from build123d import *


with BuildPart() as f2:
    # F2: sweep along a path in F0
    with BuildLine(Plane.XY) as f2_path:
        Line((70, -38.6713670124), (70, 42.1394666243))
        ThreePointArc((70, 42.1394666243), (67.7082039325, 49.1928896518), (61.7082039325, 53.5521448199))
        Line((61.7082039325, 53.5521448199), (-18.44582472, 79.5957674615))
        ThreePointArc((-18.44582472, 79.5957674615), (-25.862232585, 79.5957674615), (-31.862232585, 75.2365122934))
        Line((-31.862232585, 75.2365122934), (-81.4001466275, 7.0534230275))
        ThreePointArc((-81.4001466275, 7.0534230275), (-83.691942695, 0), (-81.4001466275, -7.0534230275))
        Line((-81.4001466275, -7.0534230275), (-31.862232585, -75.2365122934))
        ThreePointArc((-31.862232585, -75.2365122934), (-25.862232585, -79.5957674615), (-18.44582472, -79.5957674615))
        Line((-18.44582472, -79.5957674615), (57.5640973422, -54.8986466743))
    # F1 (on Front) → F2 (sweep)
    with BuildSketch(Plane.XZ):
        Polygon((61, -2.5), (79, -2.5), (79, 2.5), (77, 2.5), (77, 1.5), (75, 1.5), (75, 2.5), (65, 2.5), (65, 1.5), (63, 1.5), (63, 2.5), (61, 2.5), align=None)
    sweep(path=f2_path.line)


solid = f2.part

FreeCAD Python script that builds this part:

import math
import FreeCAD as App
import Part
import Sketcher
from FreeCAD import Vector
Q = App.Units.Quantity


def add_polygon(sketch, points):
    """Adds a closed chain of lines whose ends are joined by coincident constraints."""
    first, n = sketch.GeometryCount, len(points)
    for a, b in zip(points, points[1:] + points[:1]):
        sketch.addGeometry(Part.LineSegment(App.Vector(*a, 0), App.Vector(*b, 0)), False)
    for i in range(n):
        sketch.addConstraint(Sketcher.Constraint("Coincident", first + i, 2, first + (i + 1) % n, 1))

doc = App.newDocument("Part")
body = doc.addObject("PartDesign::Body", "Body")

# Sketch on XZ plane
sketch1 = body.newObject("Sketcher::SketchObject", "Sketch")
sketch1.AttachmentSupport = (doc.getObject("XZ_Plane"), [""])
sketch1.MapMode = "FlatFace"
add_polygon(sketch1, [(61, -2.5), (79, -2.5), (79, 2.5), (77, 2.5), (77, 1.5), (75, 1.5), (75, 2.5), (65, 2.5), (65, 1.5), (63, 1.5), (63, 2.5), (61, 2.5)])  # lines 0-11
sketch1.addConstraint([
    Sketcher.Constraint("Horizontal", 0),
    Sketcher.Constraint("Vertical", 1),
    Sketcher.Constraint("Horizontal", 2),
    Sketcher.Constraint("Vertical", 3),
    Sketcher.Constraint("Horizontal", 4),
    Sketcher.Constraint("Vertical", 5),
    Sketcher.Constraint("Horizontal", 6),
    Sketcher.Constraint("Vertical", 7),
    Sketcher.Constraint("Horizontal", 8),
    Sketcher.Constraint("Vertical", 9),
    Sketcher.Constraint("Horizontal", 10),
    Sketcher.Constraint("Vertical", 11),
    Sketcher.Constraint("Horizontal", 2, 2, 5, 2),
    Sketcher.Constraint("Horizontal", 4, 2, 7, 2),
    Sketcher.Constraint("Horizontal", 6, 2, 9, 2),
    Sketcher.Constraint("Equal", 2, 4),
    Sketcher.Constraint("Equal", 4, 8),
    Sketcher.Constraint("Equal", 8, 10),
    Sketcher.Constraint("DistanceX", 0, 1, 0, 2, 18.0),
    Sketcher.Constraint("DistanceX", 2, 2, 2, 1, 2.0),
    Sketcher.Constraint("DistanceY", 1, 1, 1, 2, 5.0),
    Sketcher.Constraint("DistanceY", 3, 2, 3, 1, 1.0),
    Sketcher.Constraint("DistanceX", -1, 1, 0, 2, 79.0),
    Sketcher.Constraint("DistanceY", 0, 2, -1, 1, 2.5),
])

# Sketch on XY plane
sketch2 = body.newObject("Sketcher::SketchObject", "Sketch001")
sketch2.AttachmentSupport = (doc.getObject("XY_Plane"), [""])
sketch2.MapMode = "FlatFace"
sketch2.addGeometry([
    Part.LineSegment(Vector(70, -39, 0), Vector(70, 42, 0)),  # 0
    Part.ArcOfCircle(Part.Circle(Vector(58, 42, 0), Vector(0, 0, 1), 12), math.radians(0), math.radians(72)),  # 1
    Part.LineSegment(Vector(62, 54, 0), Vector(-18, 80, 0)),  # 2
    Part.ArcOfCircle(Part.Circle(Vector(-22, 68, 0), Vector(0, 0, 1), 12), math.radians(72), math.radians(144)),  # 3
    Part.LineSegment(Vector(-32, 75, 0), Vector(-81, 7, 0)),  # 4
    Part.ArcOfCircle(Part.Circle(Vector(-72, 0, 0), Vector(0, 0, 1), 12), math.radians(144), math.radians(216)),  # 5
    Part.LineSegment(Vector(-81, -7, 0), Vector(-32, -75, 0)),  # 6
    Part.ArcOfCircle(Part.Circle(Vector(-22, -68, 0), Vector(0, 0, 1), 12), math.radians(-144), math.radians(-72)),  # 7
    Part.LineSegment(Vector(-18, -80, 0), Vector(58, -55, 0)),  # 8
], False)
sketch2.addConstraint([
    Sketcher.Constraint("Tangent", 0, 2, 1, 1),
    Sketcher.Constraint("Tangent", 1, 2, 2, 1),
    Sketcher.Constraint("Tangent", 2, 2, 3, 1),
    Sketcher.Constraint("Tangent", 3, 2, 4, 1),
    Sketcher.Constraint("Tangent", 4, 2, 5, 1),
    Sketcher.Constraint("Tangent", 5, 2, 6, 1),
    Sketcher.Constraint("Tangent", 6, 2, 7, 1),
    Sketcher.Constraint("Tangent", 7, 2, 8, 1),
    Sketcher.Constraint("Vertical", 0),
    Sketcher.Constraint("Equal", 1, 3),
    Sketcher.Constraint("Equal", 3, 5),
    Sketcher.Constraint("Equal", 5, 7),
    Sketcher.Constraint("Symmetric", 3, 3, 7, 3, -1),
    Sketcher.Constraint("PointOnObject", 5, 3, -1),
    Sketcher.Constraint("Vertical", 2, 2, 7, 2),
    Sketcher.Constraint("Equal", 2, 4),
    Sketcher.Constraint("Radius", 1, 12.0),
    Sketcher.Constraint("Angle", 2, Q("162 deg")),
    Sketcher.Constraint("Angle", 4, Q("-126 deg")),
    Sketcher.Constraint("DistanceX", -1, 1, 1, 3, 58.0),
    Sketcher.Constraint("DistanceY", 1, 3, 2, 2, 37.456301),
    Sketcher.Constraint("DistanceY", 7, 2, 0, 1, 40.9244),
    Sketcher.Constraint("Distance", 8, 79.921562),
])
doc.recompute()

additivepipe = body.newObject("PartDesign::AdditivePipe", "AdditivePipe")
additivepipe.Profile = sketch1
additivepipe.Spine = (sketch2, ["Edge1", "Edge2", "Edge3", "Edge4", "Edge5", "Edge6", "Edge7", "Edge8", "Edge9"])

doc.recompute()
